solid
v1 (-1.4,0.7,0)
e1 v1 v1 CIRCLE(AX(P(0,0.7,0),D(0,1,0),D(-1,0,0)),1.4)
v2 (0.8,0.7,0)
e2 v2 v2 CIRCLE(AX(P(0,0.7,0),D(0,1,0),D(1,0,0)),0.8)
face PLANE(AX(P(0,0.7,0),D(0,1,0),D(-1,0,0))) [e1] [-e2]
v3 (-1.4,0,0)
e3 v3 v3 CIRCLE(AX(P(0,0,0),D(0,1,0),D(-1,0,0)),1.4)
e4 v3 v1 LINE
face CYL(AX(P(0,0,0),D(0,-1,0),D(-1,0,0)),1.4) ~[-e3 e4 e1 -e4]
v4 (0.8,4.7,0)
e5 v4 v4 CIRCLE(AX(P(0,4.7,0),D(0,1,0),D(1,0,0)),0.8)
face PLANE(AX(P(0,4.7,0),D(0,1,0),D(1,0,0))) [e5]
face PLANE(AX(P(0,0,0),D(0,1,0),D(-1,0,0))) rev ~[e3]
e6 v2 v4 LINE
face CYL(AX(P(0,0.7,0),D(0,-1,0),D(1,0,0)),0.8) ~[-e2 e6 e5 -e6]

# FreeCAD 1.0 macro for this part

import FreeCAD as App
import Part
import Sketcher

doc = App.newDocument("Part")
body = doc.addObject("PartDesign::Body", "Body")

sketch1 = doc.addObject("Sketcher::SketchObject", "Sketch")
body.addObject(sketch1)
sketch1.AttachmentSupport = (doc.XZ_Plane, [""])
sketch1.MapMode = "FlatFace"
sketch1.addGeometry(Part.Circle(App.Vector(0, 0, 0), App.Vector(0, 0, 1), 1.4), False)
sketch1.addConstraint([
    Sketcher.Constraint("Coincident", 0, 3, -1, 1),
    Sketcher.Constraint("Diameter", 0, 2.8),
])
pad1 = doc.addObject("PartDesign::Pad", "Pad")
body.addObject(pad1)
pad1.Profile = sketch1
pad1.Length = 0.7
pad1.Reversed = True

sketch2 = doc.addObject("Sketcher::SketchObject", "Sketch001")
body.addObject(sketch2)
sketch2.AttachmentSupport = (doc.XZ_Plane, [""])
sketch2.MapMode = "FlatFace"
sketch2.AttachmentOffset = App.Placement(App.Vector(0, 0, -0.7), App.Rotation())
sketch2.addGeometry(Part.Circle(App.Vector(0, 0, 0), App.Vector(0, 0, 1), 0.8), False)
sketch2.addConstraint([
    Sketcher.Constraint("Coincident", 0, 3, -1, 1),
    Sketcher.Constraint("Diameter", 0, 1.6),
])
pad2 = doc.addObject("PartDesign::Pad", "Pad001")
body.addObject(pad2)
pad2.Profile = sketch2
pad2.Length = 4
pad2.Reversed = True

doc.recompute()
